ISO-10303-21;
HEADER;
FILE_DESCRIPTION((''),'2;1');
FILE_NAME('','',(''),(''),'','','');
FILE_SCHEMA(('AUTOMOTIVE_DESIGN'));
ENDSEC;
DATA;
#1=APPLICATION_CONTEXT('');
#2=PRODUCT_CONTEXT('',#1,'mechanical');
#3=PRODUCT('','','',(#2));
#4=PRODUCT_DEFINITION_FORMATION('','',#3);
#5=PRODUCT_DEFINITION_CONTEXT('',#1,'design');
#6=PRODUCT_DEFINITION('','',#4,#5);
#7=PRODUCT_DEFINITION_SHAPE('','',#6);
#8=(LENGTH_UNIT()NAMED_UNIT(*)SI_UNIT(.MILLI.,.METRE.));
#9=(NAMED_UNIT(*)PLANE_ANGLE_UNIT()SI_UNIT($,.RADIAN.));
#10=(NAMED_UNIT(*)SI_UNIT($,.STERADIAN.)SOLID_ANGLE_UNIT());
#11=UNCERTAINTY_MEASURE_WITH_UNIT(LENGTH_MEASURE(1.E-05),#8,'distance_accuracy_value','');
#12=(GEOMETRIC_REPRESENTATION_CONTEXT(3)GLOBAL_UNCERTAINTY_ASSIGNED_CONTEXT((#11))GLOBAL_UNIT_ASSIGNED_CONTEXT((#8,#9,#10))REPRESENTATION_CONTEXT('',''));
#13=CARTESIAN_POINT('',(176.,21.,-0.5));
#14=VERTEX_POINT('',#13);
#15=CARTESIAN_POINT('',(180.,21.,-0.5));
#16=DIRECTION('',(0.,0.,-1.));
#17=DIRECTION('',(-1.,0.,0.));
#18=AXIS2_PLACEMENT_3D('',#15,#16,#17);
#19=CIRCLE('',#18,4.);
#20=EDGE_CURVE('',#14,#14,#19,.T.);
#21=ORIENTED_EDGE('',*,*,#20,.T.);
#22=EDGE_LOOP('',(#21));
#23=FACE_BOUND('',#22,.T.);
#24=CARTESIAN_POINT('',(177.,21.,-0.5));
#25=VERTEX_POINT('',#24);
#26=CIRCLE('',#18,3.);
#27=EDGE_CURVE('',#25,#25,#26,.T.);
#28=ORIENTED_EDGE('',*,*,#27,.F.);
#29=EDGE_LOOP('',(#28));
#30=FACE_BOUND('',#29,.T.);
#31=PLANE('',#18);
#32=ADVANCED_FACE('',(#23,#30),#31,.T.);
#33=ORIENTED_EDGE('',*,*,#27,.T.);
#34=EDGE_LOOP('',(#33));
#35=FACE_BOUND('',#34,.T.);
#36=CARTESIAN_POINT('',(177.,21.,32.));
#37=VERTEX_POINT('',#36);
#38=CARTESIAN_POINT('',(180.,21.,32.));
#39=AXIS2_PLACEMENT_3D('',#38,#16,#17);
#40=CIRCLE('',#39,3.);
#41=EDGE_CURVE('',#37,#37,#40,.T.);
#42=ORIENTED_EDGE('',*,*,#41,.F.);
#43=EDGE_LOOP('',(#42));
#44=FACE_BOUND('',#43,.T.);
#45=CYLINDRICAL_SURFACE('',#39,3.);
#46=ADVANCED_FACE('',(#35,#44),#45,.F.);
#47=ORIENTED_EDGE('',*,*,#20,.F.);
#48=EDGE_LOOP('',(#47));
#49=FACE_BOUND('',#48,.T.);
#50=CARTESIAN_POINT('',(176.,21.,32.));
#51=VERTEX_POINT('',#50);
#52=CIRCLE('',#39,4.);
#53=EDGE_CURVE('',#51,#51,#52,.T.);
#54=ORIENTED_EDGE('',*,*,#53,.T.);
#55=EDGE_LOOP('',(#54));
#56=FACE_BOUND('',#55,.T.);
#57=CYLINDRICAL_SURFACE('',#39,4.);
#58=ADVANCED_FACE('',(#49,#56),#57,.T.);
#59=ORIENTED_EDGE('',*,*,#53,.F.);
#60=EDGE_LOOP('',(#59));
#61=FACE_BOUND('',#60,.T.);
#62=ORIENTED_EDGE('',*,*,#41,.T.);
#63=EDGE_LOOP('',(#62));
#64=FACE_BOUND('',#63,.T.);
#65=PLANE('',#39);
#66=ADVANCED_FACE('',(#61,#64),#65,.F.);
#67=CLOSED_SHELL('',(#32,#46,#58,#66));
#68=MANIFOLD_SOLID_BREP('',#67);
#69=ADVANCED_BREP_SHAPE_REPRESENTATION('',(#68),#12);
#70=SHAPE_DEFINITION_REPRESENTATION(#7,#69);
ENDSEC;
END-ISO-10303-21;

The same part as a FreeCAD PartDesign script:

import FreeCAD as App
import Part
import Sketcher
from FreeCAD import Vector

doc = App.newDocument("Part")
body = doc.addObject("PartDesign::Body", "Body")

sketch1 = doc.addObject("Sketcher::SketchObject", "Sketch")
body.addObject(sketch1)
sketch1.AttachmentSupport = (doc.XY_Plane, [""])
sketch1.MapMode = "FlatFace"
sketch1.AttachmentOffset = App.Placement(Vector(0, 0, 32), App.Rotation())
sketch1.addGeometry([
    Part.Circle(Vector(180, 21, 0), Vector(0, 0, 1), 4),
    Part.Circle(Vector(180, 21, 0), Vector(0, 0, 1), 3),
], False)
sketch1.addConstraint([
    Sketcher.Constraint("Coincident", 1, 3, 0, 3),
    Sketcher.Constraint("Diameter", 0, 8.0),
    Sketcher.Constraint("Diameter", 1, 6.0),
    Sketcher.Constraint("DistanceX", -1, 1, 0, 3, 180.0),
    Sketcher.Constraint("DistanceY", -1, 1, 0, 3, 21.0),
])

sketch2 = doc.addObject("Sketcher::SketchObject", "Sketch001")
body.addObject(sketch2)
sketch2.AttachmentSupport = (doc.XZ_Plane, [""])
sketch2.MapMode = "FlatFace"
sketch2.AttachmentOffset = App.Placement(Vector(0, 0, -21), App.Rotation())
sketch2.addGeometry(Part.LineSegment(Vector(180, 32, 0), Vector(180, -0.5, 0)), False)
sketch2.addConstraint([
    Sketcher.Constraint("Vertical", 0),
    Sketcher.Constraint("DistanceY", 0, 2, 0, 1, 32.5),
    Sketcher.Constraint("DistanceX", -1, 1, 0, 1, 180.0),
    Sketcher.Constraint("DistanceY", -1, 1, 0, 1, 32.0),
])
doc.recompute()

additivepipe = doc.addObject("PartDesign::AdditivePipe", "AdditivePipe")
body.addObject(additivepipe)
additivepipe.Profile = sketch1
additivepipe.Spine = (sketch2, ["Edge1"])

doc.recompute()
